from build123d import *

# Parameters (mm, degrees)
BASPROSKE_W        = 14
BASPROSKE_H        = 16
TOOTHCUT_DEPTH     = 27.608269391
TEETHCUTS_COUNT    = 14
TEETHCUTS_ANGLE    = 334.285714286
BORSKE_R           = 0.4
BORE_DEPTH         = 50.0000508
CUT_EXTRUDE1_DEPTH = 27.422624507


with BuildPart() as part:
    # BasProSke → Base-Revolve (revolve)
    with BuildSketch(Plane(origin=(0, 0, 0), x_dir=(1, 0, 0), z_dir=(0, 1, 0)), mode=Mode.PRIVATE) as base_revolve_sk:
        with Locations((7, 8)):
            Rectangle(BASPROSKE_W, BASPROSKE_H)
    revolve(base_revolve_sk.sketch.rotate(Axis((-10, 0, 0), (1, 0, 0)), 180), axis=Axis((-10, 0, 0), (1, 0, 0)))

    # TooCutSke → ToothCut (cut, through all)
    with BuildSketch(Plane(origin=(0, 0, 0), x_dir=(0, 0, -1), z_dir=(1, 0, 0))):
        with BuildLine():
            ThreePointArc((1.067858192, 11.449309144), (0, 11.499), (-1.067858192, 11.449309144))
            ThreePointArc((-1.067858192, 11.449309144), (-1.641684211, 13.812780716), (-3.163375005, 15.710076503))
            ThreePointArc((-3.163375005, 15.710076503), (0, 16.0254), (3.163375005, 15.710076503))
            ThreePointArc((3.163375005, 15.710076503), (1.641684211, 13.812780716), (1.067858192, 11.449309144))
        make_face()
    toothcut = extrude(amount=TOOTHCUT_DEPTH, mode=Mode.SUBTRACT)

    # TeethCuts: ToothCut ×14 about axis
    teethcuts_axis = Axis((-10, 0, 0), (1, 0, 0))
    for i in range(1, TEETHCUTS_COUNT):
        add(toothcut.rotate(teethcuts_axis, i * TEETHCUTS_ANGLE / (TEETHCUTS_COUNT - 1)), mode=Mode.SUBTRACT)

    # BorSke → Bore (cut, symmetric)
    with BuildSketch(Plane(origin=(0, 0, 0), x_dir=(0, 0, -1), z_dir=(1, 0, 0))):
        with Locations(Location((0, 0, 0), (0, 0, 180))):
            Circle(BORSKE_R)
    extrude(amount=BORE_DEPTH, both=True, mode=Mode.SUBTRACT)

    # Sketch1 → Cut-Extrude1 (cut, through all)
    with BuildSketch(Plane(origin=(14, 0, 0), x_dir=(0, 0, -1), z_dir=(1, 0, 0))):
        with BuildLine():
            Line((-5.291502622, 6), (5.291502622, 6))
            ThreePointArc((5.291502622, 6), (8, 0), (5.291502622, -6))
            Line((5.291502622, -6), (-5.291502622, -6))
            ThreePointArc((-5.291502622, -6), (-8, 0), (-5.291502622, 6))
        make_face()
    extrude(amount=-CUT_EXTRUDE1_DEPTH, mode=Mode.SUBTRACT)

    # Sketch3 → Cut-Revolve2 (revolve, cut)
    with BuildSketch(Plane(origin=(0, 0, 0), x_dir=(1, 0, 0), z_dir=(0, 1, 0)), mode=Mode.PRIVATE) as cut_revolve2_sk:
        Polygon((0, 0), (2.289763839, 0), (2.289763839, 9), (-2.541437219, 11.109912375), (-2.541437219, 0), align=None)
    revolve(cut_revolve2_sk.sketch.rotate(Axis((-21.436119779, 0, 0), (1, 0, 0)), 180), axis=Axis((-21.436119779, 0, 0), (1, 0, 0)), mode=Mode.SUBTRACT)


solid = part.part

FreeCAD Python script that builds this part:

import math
import FreeCAD as App
import Part
import Sketcher


def add_polygon(sketch, points):
    """Adds a closed chain of lines whose ends are joined by coincident constraints."""
    first, n = sketch.GeometryCount, len(points)
    for a, b in zip(points, points[1:] + points[:1]):
        sketch.addGeometry(Part.LineSegment(App.Vector(*a, 0), App.Vector(*b, 0)), False)
    for i in range(n):
        sketch.addConstraint(Sketcher.Constraint("Coincident", first + i, 2, first + (i + 1) % n, 1))

doc = App.newDocument("Part")
body = doc.addObject("PartDesign::Body", "Body")

# Sketch on XZ plane
sketch1 = body.newObject("Sketcher::SketchObject", "Sketch")
sketch1.AttachmentSupport = (doc.getObject("XZ_Plane"), [""])
sketch1.MapMode = "FlatFace"
add_polygon(sketch1, [(0, -16), (0, 0), (14, 0), (14, -16)])  # lines 0-3
sketch1.addConstraint(Sketcher.Constraint("Vertical", 0))
sketch1.addConstraint(Sketcher.Constraint("Horizontal", 1))
sketch1.addConstraint(Sketcher.Constraint("Vertical", 2))
sketch1.addConstraint(Sketcher.Constraint("Horizontal", 3))
sketch1.addConstraint(Sketcher.Constraint("Coincident", 0, 2, -1, 1))
sketch1.addConstraint(Sketcher.Constraint("DistanceX", 1, 1, 1, 2, 14.0))
sketch1.addConstraint(Sketcher.Constraint("DistanceY", 0, 1, 0, 2, 16.0))
revolution = body.newObject("PartDesign::Revolution", "Revolution")
revolution.Profile = sketch1
revolution.ReferenceAxis = (sketch1, ["H_Axis"])
revolution.Angle = 360

# Sketch on YZ plane
sketch2 = body.newObject("Sketcher::SketchObject", "Sketch001")
sketch2.AttachmentSupport = (doc.getObject("YZ_Plane"), [""])
sketch2.MapMode = "FlatFace"
sketch2.addGeometry(Part.ArcOfCircle(Part.Circle(App.Vector(0, 0, 0), App.Vector(0, 0, 1), 11.5), math.radians(-5.33), math.radians(5.33)), False)
sketch2.addGeometry(Part.ArcOfCircle(Part.Circle(App.Vector(11.3, -6.7, 0), App.Vector(0, 0, 1), 5.6), math.radians(39), math.radians(89)), False)
sketch2.addGeometry(Part.ArcOfCircle(Part.Circle(App.Vector(0, 0, 0), App.Vector(0, 0, 1), 16), math.radians(-11), math.radians(11)), False)
sketch2.addGeometry(Part.ArcOfCircle(Part.Circle(App.Vector(11.3, 6.7, 0), App.Vector(0, 0, 1), 5.6), math.radians(-89), math.radians(-39)), False)
sketch2.addConstraint(Sketcher.Constraint("Coincident", 0, 1, 1, 2))
sketch2.addConstraint(Sketcher.Constraint("Coincident", 1, 1, 2, 1))
sketch2.addConstraint(Sketcher.Constraint("Coincident", 2, 2, 3, 2))
sketch2.addConstraint(Sketcher.Constraint("Coincident", 3, 1, 0, 2))
sketch2.addConstraint(Sketcher.Constraint("Coincident", 0, 3, -1, 1))
sketch2.addConstraint(Sketcher.Constraint("Coincident", 2, 3, -1, 1))
sketch2.addConstraint(Sketcher.Constraint("Equal", 1, 3))
sketch2.addConstraint(Sketcher.Constraint("Symmetric", 1, 3, 3, 3, -1))
sketch2.addConstraint(Sketcher.Constraint("Radius", 1, 5.6))
sketch2.addConstraint(Sketcher.Constraint("Radius", 0, 11.499))
sketch2.addConstraint(Sketcher.Constraint("Radius", 2, 16.0254))
sketch2.addConstraint(Sketcher.Constraint("DistanceX", -1, 1, 0, 1, 11.449309))
sketch2.addConstraint(Sketcher.Constraint("DistanceX", 1, 3, 1, 1, 4.36874))
pocket1 = body.newObject("PartDesign::Pocket", "Pocket")
pocket1.Profile = sketch2
pocket1.Type = "ThroughAll"
pocket1.Reversed = True
doc.recompute()

polarpattern = body.newObject("PartDesign::PolarPattern", "PolarPattern")
polarpattern.Originals = [pocket1]
polarpattern.Axis = (doc.getObject("X_Axis"), [""])
polarpattern.Angle = 360
polarpattern.Occurrences = 14
body.Tip = polarpattern

# Sketch on YZ plane
sketch3 = body.newObject("Sketcher::SketchObject", "Sketch002")
sketch3.AttachmentSupport = (doc.getObject("YZ_Plane"), [""])
sketch3.MapMode = "FlatFace"
sketch3.addGeometry(Part.Circle(App.Vector(0, 0, 0), App.Vector(0, 0, 1), 0.4), False)
sketch3.addConstraint(Sketcher.Constraint("Coincident", 0, 3, -1, 1))
sketch3.addConstraint(Sketcher.Constraint("Diameter", 0, 0.8))
pocket2 = body.newObject("PartDesign::Pocket", "Pocket001")
pocket2.Profile = sketch3
pocket2.Length = 100.000102
pocket2.Midplane = True

# Sketch on YZ plane
sketch4 = body.newObject("Sketcher::SketchObject", "Sketch003")
sketch4.AttachmentSupport = (doc.getObject("YZ_Plane"), [""])
sketch4.MapMode = "FlatFace"
sketch4.AttachmentOffset = App.Placement(App.Vector(0, 0, 14), App.Rotation())
sketch4.addGeometry(Part.LineSegment(App.Vector(6, -5, 0), App.Vector(6, 5, 0)), False)
sketch4.addGeometry(Part.ArcOfCircle(Part.Circle(App.Vector(0, 0, 0), App.Vector(0, 0, 1), 8), math.radians(41), math.radians(139)), False)
sketch4.addGeometry(Part.LineSegment(App.Vector(-6, 5, 0), App.Vector(-6, -5, 0)), False)
sketch4.addGeometry(Part.ArcOfCircle(Part.Circle(App.Vector(0, 0, 0), App.Vector(0, 0, 1), 8), math.radians(-139), math.radians(-41)), False)
sketch4.addConstraint(Sketcher.Constraint("Coincident", 0, 2, 1, 1))
sketch4.addConstraint(Sketcher.Constraint("Coincident", 1, 2, 2, 1))
sketch4.addConstraint(Sketcher.Constraint("Coincident", 2, 2, 3, 1))
sketch4.addConstraint(Sketcher.Constraint("Coincident", 3, 2, 0, 1))
sketch4.addConstraint(Sketcher.Constraint("Vertical", 0))
sketch4.addConstraint(Sketcher.Constraint("Vertical", 2))
sketch4.addConstraint(Sketcher.Constraint("Coincident", 1, 3, -1, 1))
sketch4.addConstraint(Sketcher.Constraint("Coincident", 3, 3, -1, 1))
sketch4.addConstraint(Sketcher.Constraint("Equal", 1, 3))
sketch4.addConstraint(Sketcher.Constraint("Horizontal", 0, 2, 1, 2))
sketch4.addConstraint(Sketcher.Constraint("Radius", 1, 8.0))
sketch4.addConstraint(Sketcher.Constraint("DistanceX", -1, 1, 0, 2, 6.0))
pocket3 = body.newObject("PartDesign::Pocket", "Pocket002")
pocket3.Profile = sketch4
pocket3.Type = "ThroughAll"

# Sketch on XZ plane
sketch5 = body.newObject("Sketcher::SketchObject", "Sketch004")
sketch5.AttachmentSupport = (doc.getObject("XZ_Plane"), [""])
sketch5.MapMode = "FlatFace"
add_polygon(sketch5, [(2.3, 0), (2.3, -9), (-2.5, -11.1), (-2.5, 0)])  # lines 0-3
sketch5.addConstraint(Sketcher.Constraint("Vertical", 0))
sketch5.addConstraint(Sketcher.Constraint("Vertical", 2))
sketch5.addConstraint(Sketcher.Constraint("Horizontal", 3))
sketch5.addConstraint(Sketcher.Constraint("PointOnObject", 2, 2, -1))
sketch5.addConstraint(Sketcher.Constraint("DistanceY", 0, 2, 0, 1, 9.0))
sketch5.addConstraint(Sketcher.Constraint("DistanceX", 3, 1, 3, 2, 4.831201))
sketch5.addConstraint(Sketcher.Constraint("DistanceY", 2, 1, 2, 2, 11.109912))
sketch5.addConstraint(Sketcher.Constraint("DistanceX", -1, 1, 0, 2, 2.289764))
groove = body.newObject("PartDesign::Groove", "Groove")
groove.Profile = sketch5
groove.ReferenceAxis = (sketch5, ["H_Axis"])
groove.Angle = 360

doc.recompute()
